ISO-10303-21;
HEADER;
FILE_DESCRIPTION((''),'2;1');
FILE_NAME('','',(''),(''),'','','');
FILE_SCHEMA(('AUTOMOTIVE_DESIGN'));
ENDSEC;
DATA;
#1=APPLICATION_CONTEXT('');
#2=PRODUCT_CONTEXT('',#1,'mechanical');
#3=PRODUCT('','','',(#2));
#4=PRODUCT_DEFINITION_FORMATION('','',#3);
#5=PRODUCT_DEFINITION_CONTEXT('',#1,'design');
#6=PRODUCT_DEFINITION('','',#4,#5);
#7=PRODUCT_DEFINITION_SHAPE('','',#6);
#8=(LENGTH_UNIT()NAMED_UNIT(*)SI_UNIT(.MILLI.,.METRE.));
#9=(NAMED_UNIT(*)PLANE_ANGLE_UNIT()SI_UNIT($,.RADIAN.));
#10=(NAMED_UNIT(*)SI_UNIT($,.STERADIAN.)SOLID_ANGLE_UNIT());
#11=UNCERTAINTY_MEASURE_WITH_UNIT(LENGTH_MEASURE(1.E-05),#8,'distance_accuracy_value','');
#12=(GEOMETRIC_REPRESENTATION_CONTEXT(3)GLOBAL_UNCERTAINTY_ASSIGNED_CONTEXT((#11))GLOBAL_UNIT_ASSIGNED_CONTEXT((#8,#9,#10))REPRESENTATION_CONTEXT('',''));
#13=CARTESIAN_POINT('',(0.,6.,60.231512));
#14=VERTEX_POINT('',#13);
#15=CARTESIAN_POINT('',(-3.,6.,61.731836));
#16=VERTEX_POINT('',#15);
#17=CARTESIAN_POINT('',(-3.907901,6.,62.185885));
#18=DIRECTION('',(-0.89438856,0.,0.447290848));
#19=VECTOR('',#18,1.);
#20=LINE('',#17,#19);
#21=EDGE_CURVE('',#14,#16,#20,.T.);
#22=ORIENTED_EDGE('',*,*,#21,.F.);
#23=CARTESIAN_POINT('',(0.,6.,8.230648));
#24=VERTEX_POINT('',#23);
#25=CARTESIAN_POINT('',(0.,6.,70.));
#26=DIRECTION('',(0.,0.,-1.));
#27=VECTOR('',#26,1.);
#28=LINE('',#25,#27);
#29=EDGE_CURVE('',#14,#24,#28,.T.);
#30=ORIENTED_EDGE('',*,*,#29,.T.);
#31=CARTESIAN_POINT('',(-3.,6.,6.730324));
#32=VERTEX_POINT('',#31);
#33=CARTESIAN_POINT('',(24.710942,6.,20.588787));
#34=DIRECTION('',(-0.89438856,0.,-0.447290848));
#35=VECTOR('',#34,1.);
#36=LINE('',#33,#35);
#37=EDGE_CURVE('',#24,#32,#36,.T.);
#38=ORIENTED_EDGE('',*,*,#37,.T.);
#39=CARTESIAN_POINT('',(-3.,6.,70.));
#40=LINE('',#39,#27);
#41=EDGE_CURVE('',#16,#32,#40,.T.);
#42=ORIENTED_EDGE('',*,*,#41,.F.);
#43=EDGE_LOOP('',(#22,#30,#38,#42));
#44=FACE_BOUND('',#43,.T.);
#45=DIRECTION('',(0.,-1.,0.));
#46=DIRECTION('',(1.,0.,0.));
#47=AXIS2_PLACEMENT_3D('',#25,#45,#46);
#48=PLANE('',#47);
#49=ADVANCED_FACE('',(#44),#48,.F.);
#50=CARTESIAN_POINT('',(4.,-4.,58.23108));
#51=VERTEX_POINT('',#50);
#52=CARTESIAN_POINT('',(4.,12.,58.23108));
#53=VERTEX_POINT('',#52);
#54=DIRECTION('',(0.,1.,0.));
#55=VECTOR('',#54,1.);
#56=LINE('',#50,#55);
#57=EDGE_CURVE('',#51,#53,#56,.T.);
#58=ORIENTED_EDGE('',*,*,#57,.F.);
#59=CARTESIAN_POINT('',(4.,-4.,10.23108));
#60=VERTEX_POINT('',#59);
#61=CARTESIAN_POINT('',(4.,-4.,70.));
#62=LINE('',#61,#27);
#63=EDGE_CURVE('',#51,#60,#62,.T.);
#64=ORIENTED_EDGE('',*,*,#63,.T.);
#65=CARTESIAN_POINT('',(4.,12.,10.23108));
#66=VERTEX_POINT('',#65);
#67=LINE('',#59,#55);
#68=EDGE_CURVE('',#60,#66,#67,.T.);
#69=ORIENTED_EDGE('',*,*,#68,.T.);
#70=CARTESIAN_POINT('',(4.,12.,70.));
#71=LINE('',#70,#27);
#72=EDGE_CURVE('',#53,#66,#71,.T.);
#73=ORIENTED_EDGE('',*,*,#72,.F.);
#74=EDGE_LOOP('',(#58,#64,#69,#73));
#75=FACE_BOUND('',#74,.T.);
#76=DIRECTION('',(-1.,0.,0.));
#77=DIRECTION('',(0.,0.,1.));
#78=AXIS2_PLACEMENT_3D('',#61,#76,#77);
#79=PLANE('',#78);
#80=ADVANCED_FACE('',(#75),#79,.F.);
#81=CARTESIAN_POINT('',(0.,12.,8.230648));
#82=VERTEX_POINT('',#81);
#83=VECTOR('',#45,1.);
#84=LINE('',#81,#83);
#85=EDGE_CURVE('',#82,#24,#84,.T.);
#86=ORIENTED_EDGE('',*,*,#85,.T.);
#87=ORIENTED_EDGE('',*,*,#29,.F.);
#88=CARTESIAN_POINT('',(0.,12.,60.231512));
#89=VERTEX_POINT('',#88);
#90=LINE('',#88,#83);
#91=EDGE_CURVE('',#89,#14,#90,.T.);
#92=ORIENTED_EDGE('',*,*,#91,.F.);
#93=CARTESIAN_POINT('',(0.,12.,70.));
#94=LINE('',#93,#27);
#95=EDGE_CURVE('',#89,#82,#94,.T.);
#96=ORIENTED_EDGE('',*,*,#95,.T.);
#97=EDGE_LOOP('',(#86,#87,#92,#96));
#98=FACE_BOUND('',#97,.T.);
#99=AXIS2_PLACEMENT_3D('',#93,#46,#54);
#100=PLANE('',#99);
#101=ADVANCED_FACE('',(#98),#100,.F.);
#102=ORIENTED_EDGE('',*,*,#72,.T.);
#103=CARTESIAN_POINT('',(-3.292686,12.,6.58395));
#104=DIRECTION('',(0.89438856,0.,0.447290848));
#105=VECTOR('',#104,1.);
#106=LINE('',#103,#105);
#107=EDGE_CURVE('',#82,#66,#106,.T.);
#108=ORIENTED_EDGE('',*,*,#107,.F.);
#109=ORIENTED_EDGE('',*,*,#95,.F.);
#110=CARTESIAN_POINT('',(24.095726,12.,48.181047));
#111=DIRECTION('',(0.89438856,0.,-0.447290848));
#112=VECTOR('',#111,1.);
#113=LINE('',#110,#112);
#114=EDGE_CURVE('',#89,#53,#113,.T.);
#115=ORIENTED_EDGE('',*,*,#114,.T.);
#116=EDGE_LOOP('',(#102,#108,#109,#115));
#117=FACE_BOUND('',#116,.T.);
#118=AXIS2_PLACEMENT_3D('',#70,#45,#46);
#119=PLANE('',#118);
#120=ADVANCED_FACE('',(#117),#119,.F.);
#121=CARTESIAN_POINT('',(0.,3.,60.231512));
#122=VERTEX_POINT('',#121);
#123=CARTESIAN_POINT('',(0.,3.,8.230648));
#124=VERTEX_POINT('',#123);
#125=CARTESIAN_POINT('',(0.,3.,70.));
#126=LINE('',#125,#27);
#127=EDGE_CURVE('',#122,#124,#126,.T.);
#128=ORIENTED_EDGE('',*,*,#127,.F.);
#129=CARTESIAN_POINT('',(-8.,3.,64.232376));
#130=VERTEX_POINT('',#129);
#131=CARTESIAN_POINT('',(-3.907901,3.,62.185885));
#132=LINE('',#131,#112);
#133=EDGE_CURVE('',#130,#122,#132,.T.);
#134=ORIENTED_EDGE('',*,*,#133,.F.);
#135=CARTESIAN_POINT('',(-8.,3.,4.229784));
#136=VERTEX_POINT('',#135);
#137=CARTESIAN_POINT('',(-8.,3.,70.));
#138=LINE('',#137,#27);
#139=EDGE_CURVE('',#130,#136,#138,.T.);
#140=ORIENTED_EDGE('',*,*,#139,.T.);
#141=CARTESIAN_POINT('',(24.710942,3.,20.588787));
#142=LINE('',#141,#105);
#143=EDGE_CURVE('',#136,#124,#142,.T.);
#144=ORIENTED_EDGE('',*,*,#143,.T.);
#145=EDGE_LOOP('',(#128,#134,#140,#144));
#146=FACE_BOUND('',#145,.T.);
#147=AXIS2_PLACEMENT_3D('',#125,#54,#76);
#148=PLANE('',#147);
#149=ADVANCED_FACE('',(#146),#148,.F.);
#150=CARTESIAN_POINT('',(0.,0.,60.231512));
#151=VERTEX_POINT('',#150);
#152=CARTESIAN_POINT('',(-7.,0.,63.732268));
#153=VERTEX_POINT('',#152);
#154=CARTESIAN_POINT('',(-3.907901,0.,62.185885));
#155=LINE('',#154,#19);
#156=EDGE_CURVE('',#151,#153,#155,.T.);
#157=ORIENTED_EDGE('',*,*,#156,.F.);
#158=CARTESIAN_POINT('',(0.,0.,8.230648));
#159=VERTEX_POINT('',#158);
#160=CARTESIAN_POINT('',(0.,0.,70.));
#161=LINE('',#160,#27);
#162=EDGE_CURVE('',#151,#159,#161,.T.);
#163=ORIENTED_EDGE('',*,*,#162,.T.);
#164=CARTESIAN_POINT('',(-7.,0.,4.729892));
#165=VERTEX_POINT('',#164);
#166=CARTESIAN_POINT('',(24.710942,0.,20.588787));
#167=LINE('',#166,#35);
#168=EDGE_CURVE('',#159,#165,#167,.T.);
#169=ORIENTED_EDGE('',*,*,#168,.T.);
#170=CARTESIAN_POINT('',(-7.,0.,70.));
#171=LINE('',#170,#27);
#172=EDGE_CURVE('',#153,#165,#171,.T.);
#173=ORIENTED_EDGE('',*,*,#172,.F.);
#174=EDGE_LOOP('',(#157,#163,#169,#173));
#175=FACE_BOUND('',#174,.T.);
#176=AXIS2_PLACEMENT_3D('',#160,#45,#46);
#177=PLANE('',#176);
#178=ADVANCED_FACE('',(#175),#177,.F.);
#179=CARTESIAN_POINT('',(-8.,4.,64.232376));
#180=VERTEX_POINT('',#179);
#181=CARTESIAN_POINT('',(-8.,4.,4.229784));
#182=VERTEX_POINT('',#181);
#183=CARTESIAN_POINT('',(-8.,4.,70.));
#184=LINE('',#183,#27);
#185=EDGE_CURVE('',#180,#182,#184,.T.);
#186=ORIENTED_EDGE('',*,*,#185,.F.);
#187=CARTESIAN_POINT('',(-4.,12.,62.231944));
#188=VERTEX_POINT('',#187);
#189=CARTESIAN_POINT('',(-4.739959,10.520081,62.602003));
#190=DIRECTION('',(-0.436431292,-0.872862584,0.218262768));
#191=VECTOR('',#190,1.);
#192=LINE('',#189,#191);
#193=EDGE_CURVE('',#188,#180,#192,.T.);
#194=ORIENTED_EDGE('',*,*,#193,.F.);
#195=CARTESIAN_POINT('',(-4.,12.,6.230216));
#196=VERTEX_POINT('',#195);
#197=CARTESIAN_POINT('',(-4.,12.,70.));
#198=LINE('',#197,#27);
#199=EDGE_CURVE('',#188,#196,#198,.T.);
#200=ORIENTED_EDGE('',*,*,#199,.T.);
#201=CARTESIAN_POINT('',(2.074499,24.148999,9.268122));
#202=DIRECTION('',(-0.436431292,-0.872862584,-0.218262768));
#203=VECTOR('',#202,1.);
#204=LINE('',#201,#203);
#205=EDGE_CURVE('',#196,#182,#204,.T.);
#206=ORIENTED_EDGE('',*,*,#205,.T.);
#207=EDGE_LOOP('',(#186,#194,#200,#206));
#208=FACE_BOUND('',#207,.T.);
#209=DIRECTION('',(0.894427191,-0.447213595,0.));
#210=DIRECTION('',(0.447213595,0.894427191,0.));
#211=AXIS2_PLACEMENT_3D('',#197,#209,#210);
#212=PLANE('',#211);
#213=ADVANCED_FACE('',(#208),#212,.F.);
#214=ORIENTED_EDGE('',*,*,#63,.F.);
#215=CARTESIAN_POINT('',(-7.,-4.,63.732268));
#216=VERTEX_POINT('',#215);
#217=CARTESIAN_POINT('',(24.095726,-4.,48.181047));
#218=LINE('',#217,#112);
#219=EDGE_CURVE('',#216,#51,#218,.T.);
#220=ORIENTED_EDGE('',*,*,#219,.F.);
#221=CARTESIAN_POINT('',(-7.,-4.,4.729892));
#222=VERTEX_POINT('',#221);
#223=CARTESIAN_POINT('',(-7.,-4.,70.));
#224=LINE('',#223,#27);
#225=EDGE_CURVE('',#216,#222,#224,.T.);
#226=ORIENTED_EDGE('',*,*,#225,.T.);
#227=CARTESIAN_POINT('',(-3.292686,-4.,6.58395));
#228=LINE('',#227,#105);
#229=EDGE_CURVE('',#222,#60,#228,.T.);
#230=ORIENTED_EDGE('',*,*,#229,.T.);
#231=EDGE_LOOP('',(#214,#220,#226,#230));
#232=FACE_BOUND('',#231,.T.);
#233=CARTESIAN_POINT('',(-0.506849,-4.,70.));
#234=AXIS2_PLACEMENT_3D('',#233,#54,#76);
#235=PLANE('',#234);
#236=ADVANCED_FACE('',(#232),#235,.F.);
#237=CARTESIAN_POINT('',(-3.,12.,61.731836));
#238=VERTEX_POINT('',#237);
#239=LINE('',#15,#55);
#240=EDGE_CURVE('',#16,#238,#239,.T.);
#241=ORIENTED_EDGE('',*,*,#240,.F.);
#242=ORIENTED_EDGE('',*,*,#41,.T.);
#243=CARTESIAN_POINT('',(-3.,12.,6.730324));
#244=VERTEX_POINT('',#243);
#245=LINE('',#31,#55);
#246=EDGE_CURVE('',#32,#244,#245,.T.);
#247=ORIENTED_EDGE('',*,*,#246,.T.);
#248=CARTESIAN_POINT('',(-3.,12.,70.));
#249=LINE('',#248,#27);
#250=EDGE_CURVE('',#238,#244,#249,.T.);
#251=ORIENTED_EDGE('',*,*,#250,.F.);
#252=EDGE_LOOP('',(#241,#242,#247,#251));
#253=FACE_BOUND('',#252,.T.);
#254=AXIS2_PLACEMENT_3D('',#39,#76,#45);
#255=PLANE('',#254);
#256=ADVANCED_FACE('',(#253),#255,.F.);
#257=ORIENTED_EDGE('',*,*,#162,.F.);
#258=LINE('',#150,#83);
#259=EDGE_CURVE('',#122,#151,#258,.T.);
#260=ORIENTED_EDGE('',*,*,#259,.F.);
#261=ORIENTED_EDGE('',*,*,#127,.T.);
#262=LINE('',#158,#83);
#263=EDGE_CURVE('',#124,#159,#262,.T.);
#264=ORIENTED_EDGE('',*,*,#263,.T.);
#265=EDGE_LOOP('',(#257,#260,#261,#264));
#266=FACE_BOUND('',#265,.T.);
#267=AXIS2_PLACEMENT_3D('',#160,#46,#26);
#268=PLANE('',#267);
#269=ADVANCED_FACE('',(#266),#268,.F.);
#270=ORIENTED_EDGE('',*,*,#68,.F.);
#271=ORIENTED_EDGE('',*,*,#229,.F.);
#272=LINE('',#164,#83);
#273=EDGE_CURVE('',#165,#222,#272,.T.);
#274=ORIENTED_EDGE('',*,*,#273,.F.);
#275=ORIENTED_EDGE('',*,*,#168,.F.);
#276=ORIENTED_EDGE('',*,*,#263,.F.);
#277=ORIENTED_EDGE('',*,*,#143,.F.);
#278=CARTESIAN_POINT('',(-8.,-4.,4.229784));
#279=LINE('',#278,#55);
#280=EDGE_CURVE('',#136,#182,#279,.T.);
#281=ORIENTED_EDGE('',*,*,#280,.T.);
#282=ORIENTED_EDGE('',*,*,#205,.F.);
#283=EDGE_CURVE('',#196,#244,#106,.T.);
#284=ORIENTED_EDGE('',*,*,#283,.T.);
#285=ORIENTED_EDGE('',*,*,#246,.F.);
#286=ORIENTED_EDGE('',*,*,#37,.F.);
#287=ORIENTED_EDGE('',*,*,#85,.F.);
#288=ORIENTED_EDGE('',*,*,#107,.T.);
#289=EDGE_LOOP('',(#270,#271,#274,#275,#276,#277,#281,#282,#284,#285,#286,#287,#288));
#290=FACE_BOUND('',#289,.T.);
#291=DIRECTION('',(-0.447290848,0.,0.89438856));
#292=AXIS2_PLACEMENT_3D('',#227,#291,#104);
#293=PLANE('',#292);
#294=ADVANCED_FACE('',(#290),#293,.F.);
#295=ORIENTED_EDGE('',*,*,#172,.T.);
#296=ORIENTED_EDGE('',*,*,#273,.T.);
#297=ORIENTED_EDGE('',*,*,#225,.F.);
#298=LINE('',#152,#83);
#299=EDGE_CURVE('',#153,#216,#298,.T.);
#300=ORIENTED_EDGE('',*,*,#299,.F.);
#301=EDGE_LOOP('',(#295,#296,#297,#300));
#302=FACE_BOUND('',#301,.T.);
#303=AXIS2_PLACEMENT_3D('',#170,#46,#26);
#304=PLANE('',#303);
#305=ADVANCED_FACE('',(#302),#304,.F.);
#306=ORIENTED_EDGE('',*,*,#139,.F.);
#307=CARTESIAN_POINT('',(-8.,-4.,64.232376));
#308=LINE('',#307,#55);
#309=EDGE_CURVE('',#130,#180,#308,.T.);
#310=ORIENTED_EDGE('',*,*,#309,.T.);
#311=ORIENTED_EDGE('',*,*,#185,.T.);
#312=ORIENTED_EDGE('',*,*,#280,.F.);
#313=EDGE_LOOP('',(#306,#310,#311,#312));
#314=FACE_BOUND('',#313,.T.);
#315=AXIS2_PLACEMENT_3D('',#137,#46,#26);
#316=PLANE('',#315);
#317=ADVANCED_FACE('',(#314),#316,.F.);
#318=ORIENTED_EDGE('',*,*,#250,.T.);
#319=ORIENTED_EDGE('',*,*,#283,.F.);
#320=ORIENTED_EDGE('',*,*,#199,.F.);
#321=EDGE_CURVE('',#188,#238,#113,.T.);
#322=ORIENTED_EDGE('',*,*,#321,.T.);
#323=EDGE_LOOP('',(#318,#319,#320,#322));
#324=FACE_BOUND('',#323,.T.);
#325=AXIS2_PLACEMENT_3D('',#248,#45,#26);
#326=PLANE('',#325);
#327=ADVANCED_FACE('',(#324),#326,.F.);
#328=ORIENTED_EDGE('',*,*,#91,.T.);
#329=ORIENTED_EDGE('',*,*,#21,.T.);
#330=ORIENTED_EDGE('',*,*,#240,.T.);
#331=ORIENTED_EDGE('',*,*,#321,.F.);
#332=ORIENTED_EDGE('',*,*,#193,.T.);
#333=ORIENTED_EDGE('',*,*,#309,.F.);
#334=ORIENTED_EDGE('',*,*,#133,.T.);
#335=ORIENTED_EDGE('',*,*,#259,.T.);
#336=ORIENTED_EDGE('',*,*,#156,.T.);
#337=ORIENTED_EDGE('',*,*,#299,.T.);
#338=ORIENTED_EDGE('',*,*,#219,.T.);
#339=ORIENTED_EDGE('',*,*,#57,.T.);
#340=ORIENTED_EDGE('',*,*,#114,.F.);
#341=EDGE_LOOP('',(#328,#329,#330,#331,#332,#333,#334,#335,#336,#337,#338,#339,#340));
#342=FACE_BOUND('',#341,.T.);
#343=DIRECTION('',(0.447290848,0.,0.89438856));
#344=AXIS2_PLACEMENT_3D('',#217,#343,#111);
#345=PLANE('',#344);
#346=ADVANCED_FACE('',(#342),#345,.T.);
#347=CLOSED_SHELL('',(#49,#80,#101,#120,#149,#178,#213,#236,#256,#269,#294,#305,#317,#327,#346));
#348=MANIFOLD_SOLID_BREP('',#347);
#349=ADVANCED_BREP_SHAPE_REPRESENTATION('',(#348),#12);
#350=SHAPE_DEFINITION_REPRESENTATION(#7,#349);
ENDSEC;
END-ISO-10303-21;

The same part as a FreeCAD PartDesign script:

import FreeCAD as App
import Part
import Sketcher
from FreeCAD import Vector
Q = App.Units.Quantity


def add_polygon(sketch, points):
    """Adds a closed chain of lines whose ends are joined by coincident constraints."""
    first, n = sketch.GeometryCount, len(points)
    for a, b in zip(points, points[1:] + points[:1]):
        sketch.addGeometry(Part.LineSegment(App.Vector(*a, 0), App.Vector(*b, 0)), False)
    for i in range(n):
        sketch.addConstraint(Sketcher.Constraint("Coincident", first + i, 2, first + (i + 1) % n, 1))

doc = App.newDocument("Part")
body = doc.addObject("PartDesign::Body", "Body")

sketch1 = body.newObject("Sketcher::SketchObject", "Sketch")
sketch1.AttachmentSupport = (doc.getObject("XY_Plane"), [""])
sketch1.MapMode = "FlatFace"
add_polygon(sketch1, [(0, 0), (-7, 0), (-7, -4), (4, -4), (4, 12), (0, 12), (0, 6), (-3, 6), (-3, 12), (-4, 12), (-8, 4), (-8, 3), (0, 3)])
sketch1.addConstraint([
    Sketcher.Constraint("Horizontal", 0),
    Sketcher.Constraint("Vertical", 1),
    Sketcher.Constraint("Horizontal", 2),
    Sketcher.Constraint("Vertical", 3),
    Sketcher.Constraint("Horizontal", 4),
    Sketcher.Constraint("Vertical", 5),
    Sketcher.Constraint("Horizontal", 6),
    Sketcher.Constraint("Vertical", 7),
    Sketcher.Constraint("Horizontal", 8),
    Sketcher.Constraint("Vertical", 10),
    Sketcher.Constraint("Horizontal", 11),
    Sketcher.Constraint("Vertical", 12),
    Sketcher.Constraint("Coincident", 12, 2, -1, 1),
    Sketcher.Constraint("Symmetric", 3, 2, 8, 2, -2),
    Sketcher.Constraint("PointOnObject", 4, 2, -2),
    Sketcher.Constraint("Equal", 4, 1),
    Sketcher.Constraint("Equal", 8, 10),
    Sketcher.Constraint("Equal", 6, 12),
    Sketcher.Constraint("DistanceX", 0, 2, 0, 1, 7.0),
    Sketcher.Constraint("DistanceX", 2, 1, 2, 2, 11.0),
    Sketcher.Constraint("DistanceX", 6, 2, 6, 1, 3.0),
    Sketcher.Constraint("DistanceX", 11, 1, 11, 2, 8.0),
    Sketcher.Constraint("DistanceY", 3, 1, 3, 2, 16.0),
    Sketcher.Constraint("DistanceY", 5, 2, 5, 1, 6.0),
])
pad1 = body.newObject("PartDesign::Pad", "Pad")
pad1.Profile = sketch1
pad1.Length = 70

sketch2 = body.newObject("Sketcher::SketchObject", "Sketch001")
sketch2.AttachmentSupport = (doc.getObject("XZ_Plane"), [""])
sketch2.MapMode = "FlatFace"
sketch2.AttachmentOffset = App.Placement(Vector(0, 0, -12), App.Rotation())
add_polygon(sketch2, [(-16, -8), (-16, 78), (12, 78), (12, -8)])
add_polygon(sketch2, [(-16, 68), (-16, 0), (4, 10), (4, 58)])
sketch2.addConstraint([
    Sketcher.Constraint("Vertical", 0),
    Sketcher.Constraint("Horizontal", 1),
    Sketcher.Constraint("Vertical", 2),
    Sketcher.Constraint("Horizontal", 3),
    Sketcher.Constraint("Vertical", 4),
    Sketcher.Constraint("Vertical", 6),
    Sketcher.Constraint("Equal", 5, 7),
    Sketcher.Constraint("DistanceY", 6, 1, 6, 2, 48.0),
    Sketcher.Constraint("DistanceX", -1, 1, 5, 2, 4.0),
    Sketcher.Constraint("DistanceX", 1, 1, 1, 2, 28.56),
    Sketcher.Constraint("DistanceY", 0, 1, 0, 2, 86.56),
    Sketcher.Constraint("Angle", 5, Q("26.57 deg")),
    Sketcher.Constraint("DistanceX", 0, 2, -1, 1, 16.28),
    Sketcher.Constraint("DistanceY", -1, 1, 0, 2, 78.28),
    Sketcher.Constraint("DistanceY", 4, 2, 4, 1, 67.928474),
    Sketcher.Constraint("DistanceY", -1, 1, 5, 2, 10.23108),
])
pocket1 = body.newObject("PartDesign::Pocket", "Pocket")
pocket1.Profile = sketch2
pocket1.Type = "ThroughAll"
pocket1.Reversed = True

doc.recompute()
